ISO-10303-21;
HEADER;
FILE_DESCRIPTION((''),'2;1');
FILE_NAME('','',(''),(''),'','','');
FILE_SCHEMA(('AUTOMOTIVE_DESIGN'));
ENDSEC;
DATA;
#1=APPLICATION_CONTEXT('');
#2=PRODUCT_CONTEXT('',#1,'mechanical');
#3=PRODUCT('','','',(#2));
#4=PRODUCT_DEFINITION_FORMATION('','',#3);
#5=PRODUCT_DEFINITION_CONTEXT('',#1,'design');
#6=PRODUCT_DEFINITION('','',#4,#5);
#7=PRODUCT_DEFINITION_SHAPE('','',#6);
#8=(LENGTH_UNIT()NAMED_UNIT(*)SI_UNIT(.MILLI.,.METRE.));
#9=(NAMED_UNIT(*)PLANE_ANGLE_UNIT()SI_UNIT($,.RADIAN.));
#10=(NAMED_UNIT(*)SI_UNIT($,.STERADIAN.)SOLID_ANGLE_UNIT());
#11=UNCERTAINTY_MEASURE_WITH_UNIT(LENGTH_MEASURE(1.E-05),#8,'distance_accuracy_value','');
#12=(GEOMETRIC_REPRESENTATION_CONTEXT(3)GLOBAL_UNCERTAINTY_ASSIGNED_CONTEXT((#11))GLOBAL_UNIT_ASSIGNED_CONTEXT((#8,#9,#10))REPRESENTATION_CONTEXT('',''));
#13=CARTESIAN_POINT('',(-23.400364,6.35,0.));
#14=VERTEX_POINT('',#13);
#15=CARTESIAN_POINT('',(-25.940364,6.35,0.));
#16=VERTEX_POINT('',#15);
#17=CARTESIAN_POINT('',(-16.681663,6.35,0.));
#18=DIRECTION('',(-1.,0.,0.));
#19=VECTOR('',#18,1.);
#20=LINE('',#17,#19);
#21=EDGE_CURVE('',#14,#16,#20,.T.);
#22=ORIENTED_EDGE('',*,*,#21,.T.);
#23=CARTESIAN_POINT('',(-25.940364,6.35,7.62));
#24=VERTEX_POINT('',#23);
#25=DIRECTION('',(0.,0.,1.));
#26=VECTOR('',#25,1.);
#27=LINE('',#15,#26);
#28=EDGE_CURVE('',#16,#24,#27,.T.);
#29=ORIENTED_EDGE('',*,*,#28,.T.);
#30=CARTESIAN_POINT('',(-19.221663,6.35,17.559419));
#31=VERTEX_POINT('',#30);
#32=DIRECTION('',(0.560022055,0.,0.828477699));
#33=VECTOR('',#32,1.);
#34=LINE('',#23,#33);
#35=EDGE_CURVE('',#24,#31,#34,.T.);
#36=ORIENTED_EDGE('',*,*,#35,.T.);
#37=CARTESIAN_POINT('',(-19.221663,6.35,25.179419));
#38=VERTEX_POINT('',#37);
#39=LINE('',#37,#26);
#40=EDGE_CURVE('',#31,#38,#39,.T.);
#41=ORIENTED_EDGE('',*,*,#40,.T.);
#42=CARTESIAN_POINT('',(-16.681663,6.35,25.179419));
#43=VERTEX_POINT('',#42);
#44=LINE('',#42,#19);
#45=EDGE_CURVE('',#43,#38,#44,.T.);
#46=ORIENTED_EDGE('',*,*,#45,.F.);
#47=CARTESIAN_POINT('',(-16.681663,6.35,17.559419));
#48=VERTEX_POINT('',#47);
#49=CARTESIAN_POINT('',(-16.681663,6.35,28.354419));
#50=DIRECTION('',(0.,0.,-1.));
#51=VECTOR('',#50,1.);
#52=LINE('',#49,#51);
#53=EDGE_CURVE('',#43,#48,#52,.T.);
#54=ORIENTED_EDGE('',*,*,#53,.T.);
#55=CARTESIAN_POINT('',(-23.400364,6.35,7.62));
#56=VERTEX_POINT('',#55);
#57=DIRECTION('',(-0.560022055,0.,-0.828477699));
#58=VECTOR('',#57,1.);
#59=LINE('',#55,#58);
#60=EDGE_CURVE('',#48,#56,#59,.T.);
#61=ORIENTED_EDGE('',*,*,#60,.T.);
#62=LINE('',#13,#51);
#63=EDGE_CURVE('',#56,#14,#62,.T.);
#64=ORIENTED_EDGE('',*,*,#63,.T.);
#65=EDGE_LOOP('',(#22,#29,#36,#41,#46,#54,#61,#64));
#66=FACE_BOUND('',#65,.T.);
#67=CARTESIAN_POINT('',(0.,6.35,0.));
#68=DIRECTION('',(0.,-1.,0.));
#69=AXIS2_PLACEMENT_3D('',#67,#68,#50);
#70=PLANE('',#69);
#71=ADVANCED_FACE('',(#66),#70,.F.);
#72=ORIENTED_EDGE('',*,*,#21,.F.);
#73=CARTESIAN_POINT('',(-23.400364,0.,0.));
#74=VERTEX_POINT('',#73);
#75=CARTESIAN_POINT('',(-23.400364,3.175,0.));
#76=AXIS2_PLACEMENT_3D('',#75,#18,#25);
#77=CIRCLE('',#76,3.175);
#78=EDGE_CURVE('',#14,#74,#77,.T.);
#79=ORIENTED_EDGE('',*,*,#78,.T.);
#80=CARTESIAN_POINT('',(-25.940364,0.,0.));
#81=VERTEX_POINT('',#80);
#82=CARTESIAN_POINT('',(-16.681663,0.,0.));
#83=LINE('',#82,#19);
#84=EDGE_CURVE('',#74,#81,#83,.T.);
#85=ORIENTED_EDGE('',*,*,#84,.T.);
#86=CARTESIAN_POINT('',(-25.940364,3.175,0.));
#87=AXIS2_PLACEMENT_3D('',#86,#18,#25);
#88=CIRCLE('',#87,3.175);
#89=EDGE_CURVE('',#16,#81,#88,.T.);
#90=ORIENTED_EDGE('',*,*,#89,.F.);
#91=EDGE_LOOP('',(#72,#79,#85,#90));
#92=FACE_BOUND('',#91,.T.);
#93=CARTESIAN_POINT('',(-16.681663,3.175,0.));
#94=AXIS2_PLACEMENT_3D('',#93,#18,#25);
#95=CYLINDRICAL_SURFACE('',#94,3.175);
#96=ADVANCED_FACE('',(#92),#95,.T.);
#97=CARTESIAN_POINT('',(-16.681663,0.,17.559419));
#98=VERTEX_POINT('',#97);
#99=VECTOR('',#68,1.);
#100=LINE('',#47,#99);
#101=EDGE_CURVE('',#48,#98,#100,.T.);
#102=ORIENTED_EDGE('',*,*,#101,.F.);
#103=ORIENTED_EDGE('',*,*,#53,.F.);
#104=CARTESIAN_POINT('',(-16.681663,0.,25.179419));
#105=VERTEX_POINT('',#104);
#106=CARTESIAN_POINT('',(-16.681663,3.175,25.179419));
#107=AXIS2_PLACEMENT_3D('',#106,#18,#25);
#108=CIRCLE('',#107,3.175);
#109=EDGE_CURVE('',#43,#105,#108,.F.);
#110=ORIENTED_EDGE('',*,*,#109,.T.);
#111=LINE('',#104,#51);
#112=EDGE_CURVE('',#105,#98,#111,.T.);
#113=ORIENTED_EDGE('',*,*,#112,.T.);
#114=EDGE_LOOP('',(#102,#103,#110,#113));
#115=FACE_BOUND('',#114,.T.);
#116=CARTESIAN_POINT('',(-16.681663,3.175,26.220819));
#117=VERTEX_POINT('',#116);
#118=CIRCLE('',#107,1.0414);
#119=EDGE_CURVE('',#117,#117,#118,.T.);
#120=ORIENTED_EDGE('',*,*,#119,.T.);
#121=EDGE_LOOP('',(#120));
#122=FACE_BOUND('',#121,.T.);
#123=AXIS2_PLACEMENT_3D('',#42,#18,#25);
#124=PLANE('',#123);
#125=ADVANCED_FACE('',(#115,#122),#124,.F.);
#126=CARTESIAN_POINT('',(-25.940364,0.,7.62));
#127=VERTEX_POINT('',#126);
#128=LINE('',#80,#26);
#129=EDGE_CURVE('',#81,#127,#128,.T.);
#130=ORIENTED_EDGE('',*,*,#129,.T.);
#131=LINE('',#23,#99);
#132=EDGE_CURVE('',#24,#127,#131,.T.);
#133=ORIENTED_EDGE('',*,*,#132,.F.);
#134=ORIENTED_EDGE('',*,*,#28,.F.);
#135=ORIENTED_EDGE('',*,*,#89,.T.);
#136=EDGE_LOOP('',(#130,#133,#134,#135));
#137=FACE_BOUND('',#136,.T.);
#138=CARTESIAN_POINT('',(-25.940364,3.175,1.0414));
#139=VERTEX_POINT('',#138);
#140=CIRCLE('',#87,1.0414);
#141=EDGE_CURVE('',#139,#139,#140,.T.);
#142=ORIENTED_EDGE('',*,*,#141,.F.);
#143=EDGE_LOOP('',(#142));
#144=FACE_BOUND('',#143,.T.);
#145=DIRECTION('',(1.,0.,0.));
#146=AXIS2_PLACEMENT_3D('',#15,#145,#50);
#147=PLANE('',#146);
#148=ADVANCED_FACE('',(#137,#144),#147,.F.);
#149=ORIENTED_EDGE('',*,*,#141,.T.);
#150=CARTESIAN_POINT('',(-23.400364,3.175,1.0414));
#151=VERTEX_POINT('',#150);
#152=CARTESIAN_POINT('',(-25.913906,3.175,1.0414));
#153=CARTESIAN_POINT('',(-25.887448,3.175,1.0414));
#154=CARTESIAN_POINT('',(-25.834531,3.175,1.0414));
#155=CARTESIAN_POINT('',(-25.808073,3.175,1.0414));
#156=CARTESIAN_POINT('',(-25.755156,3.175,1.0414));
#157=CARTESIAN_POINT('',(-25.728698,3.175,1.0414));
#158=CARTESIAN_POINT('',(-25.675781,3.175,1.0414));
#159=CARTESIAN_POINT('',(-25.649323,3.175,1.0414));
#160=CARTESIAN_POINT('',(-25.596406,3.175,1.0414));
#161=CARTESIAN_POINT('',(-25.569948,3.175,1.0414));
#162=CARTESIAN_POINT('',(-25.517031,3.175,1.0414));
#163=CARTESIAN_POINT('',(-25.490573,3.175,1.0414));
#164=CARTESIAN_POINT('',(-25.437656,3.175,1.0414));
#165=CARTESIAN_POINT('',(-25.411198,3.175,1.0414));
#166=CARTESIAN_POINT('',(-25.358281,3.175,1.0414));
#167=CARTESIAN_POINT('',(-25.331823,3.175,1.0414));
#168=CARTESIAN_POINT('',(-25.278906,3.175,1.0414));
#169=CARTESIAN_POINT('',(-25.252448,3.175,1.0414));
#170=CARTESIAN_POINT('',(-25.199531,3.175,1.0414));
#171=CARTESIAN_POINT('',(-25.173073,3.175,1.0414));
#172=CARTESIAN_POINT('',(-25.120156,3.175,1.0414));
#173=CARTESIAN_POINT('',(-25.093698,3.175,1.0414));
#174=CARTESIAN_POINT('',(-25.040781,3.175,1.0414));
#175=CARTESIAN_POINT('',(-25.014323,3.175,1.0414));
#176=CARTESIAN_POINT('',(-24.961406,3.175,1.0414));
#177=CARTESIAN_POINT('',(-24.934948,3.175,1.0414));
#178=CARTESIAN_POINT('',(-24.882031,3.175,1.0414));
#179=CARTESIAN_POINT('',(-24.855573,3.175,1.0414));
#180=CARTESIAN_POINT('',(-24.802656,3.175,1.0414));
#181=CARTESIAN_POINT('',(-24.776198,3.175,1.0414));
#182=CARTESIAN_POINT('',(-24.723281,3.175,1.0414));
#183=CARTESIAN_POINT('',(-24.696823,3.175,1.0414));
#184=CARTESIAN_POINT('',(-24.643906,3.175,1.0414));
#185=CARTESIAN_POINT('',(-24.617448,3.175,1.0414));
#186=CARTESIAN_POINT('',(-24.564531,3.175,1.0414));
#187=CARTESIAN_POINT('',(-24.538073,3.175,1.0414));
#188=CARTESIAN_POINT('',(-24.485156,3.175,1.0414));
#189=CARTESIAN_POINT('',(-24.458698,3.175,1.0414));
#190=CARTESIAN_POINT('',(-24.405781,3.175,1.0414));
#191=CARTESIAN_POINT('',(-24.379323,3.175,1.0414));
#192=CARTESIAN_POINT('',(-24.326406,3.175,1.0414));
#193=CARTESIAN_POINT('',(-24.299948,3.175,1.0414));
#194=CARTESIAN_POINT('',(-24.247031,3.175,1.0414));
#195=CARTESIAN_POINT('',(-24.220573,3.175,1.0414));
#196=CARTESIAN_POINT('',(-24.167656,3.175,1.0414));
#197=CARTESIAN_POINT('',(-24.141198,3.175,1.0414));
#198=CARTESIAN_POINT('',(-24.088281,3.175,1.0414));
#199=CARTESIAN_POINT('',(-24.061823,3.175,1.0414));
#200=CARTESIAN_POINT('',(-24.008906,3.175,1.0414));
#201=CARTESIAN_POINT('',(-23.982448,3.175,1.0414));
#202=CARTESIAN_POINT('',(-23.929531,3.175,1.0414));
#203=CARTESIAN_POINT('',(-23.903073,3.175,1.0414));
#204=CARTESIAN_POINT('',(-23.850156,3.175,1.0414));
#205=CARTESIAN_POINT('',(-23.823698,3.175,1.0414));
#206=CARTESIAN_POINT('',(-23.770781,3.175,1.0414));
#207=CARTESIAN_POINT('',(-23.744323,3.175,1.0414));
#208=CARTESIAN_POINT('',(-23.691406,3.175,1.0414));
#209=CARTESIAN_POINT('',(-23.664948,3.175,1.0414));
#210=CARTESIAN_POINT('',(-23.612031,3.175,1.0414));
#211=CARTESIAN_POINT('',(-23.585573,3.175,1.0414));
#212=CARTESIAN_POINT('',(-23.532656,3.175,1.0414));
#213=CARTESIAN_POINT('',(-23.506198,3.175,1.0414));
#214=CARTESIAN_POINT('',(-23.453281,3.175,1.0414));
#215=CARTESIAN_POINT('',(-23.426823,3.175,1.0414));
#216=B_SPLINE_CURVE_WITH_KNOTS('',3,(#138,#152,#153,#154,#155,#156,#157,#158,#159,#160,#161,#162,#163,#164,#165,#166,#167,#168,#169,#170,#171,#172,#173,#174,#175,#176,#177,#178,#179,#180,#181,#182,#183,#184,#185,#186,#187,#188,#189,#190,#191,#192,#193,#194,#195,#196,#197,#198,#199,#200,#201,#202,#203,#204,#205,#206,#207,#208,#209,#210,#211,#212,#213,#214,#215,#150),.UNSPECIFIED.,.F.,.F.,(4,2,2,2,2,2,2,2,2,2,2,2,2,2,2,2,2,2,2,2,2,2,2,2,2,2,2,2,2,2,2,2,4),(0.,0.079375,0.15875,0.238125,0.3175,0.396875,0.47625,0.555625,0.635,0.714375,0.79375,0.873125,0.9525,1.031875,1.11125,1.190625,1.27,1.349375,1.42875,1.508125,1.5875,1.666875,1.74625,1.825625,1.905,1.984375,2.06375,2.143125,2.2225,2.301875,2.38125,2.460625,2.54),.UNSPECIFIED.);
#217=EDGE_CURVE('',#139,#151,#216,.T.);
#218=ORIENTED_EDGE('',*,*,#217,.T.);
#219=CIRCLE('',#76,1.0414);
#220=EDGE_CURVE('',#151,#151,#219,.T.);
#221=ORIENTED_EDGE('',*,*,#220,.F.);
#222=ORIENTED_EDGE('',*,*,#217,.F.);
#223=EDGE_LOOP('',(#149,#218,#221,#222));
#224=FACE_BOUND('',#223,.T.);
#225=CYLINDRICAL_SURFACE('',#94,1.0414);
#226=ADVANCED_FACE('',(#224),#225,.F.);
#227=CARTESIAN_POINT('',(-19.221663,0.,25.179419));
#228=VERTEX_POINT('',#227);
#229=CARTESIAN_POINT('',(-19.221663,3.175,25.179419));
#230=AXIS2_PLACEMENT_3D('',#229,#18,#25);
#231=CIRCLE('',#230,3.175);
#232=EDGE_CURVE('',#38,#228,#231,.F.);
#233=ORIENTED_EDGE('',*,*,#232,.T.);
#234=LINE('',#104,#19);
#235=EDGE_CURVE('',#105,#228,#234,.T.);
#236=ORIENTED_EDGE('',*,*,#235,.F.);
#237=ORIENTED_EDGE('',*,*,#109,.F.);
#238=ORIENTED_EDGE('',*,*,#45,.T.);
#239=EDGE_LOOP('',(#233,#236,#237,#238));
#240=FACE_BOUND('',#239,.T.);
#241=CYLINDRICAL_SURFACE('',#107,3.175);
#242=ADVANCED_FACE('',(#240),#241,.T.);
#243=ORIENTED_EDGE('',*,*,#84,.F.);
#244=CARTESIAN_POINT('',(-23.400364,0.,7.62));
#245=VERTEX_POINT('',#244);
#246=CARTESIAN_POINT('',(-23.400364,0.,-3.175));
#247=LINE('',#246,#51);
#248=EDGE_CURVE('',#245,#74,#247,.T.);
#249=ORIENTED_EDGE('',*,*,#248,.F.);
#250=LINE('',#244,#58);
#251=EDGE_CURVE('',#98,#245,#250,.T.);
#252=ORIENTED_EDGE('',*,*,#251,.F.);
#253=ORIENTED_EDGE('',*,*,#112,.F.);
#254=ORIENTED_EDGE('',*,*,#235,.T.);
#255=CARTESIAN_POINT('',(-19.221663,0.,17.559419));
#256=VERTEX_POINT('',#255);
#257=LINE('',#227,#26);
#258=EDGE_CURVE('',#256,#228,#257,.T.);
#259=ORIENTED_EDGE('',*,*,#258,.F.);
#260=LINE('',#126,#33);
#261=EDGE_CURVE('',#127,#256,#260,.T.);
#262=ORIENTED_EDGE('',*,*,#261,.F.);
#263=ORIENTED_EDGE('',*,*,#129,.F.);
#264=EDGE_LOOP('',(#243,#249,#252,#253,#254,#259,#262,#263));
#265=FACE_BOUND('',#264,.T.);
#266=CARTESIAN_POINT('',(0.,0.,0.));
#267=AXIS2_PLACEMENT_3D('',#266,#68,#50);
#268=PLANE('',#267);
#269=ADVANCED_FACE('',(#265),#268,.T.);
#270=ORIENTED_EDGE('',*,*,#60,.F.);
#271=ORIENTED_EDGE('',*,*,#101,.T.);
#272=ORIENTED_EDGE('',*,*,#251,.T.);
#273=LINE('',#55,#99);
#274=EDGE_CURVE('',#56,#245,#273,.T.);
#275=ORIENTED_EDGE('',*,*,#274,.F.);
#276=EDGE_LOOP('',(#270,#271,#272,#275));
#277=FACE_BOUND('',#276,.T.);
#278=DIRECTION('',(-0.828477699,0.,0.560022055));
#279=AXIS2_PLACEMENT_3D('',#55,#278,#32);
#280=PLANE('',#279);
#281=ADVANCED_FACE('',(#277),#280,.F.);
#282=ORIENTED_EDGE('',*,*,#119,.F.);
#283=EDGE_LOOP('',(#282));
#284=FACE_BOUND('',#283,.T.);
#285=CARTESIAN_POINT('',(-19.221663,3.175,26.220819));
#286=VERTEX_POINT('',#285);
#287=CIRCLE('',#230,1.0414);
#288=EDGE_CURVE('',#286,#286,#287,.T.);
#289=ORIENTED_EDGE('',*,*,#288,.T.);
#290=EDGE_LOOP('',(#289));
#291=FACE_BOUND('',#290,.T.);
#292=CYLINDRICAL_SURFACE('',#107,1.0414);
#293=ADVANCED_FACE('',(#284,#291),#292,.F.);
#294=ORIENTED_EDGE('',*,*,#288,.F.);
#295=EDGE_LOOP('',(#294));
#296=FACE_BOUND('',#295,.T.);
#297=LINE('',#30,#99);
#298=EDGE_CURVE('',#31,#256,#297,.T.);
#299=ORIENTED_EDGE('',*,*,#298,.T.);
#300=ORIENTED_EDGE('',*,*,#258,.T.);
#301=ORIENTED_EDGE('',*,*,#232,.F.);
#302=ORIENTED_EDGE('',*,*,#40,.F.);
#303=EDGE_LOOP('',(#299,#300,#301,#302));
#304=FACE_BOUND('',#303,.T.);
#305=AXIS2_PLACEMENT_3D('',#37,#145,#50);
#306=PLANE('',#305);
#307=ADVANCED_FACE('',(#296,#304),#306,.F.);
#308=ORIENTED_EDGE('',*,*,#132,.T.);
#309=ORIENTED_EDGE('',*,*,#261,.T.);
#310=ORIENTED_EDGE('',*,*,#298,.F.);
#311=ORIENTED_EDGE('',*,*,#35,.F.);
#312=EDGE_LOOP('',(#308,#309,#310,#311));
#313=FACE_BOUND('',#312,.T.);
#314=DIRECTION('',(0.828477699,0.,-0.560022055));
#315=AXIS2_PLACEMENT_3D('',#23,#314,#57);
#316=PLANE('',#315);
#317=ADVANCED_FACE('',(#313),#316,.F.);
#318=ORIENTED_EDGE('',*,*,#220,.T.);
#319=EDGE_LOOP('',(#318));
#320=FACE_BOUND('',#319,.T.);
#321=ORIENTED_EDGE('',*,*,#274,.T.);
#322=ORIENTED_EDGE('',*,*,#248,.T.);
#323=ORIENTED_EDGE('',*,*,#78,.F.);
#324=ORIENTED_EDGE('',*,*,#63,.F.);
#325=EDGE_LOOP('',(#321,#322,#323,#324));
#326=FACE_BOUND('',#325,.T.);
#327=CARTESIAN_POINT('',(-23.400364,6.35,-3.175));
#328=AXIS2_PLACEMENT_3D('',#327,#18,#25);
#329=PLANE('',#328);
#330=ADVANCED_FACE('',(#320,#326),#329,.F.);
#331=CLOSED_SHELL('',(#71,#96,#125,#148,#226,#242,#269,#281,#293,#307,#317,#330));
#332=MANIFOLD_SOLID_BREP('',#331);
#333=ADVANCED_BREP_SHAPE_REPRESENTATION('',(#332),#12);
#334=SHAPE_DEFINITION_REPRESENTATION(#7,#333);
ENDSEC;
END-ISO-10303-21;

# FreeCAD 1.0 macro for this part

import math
import FreeCAD as App
import Part
import Sketcher
from FreeCAD import Vector
Q = App.Units.Quantity


def add_polygon(sketch, points):
    """Adds a closed chain of lines whose ends are joined by coincident constraints."""
    first, n = sketch.GeometryCount, len(points)
    for a, b in zip(points, points[1:] + points[:1]):
        sketch.addGeometry(Part.LineSegment(App.Vector(*a, 0), App.Vector(*b, 0)), False)
    for i in range(n):
        sketch.addConstraint(Sketcher.Constraint("Coincident", first + i, 2, first + (i + 1) % n, 1))

doc = App.newDocument("Part")
params = doc.addObject("Spreadsheet::Sheet", "Params")
for row, (alias, value) in enumerate([
    ("sketch1_width", "0.1 in"),
    ("sketch1_height", "0.425 in"),
    ("pad1_length", "0.25 in"),
    ("sketch2_diameter", "0.082 in"),
    ("sketch2_radius", "0.125 in"),
    ("sketch3_diameter", "0.082 in"),
    ("sketch3_radius", "0.125 in"),
], start=1):
    params.set(f"A{row}", alias)
    params.set(f"B{row}", "=" + value)
    params.setAlias(f"B{row}", alias)

body = doc.addObject("PartDesign::Body", "Body")

sketch1 = doc.addObject("Sketcher::SketchObject", "Sketch")
body.addObject(sketch1)
sketch1.AttachmentSupport = (doc.XZ_Plane, [""])
sketch1.MapMode = "FlatFace"
add_polygon(sketch1, [(-16.7, 17.6), (-23.4, 7.6), (-23.4, -3.2), (-25.9, -3.2), (-25.9, 7.6), (-19.2, 17.6), (-19.2, 28.4), (-16.7, 28.4)])
sketch1.addConstraint([
    Sketcher.Constraint("Vertical", 1),
    Sketcher.Constraint("Horizontal", 2),
    Sketcher.Constraint("Vertical", 3),
    Sketcher.Constraint("Vertical", 5),
    Sketcher.Constraint("Horizontal", 6),
    Sketcher.Constraint("Vertical", 7),
    Sketcher.Constraint("Parallel", 0, 4),
    Sketcher.Constraint("Horizontal", 0, 2, 3, 2),
    Sketcher.Constraint("Horizontal", 4, 2, 7, 2),
    Sketcher.Constraint("Equal", 3, 5),
    Sketcher.Constraint("DistanceX", 2, 2, 2, 1, Q("0.1 in")),
    Sketcher.Constraint("DistanceY", -1, 1, 0, 2, Q("0.3 in")),
    Sketcher.Constraint("DistanceY", 1, 2, 1, 1, Q("0.425 in")),
    Sketcher.Constraint("DistanceX", 0, 2, 4, 2, Q("4.178701 mm")),
    Sketcher.Constraint("Distance", 0, Q("11.997208 mm")),
    Sketcher.Constraint("DistanceX", 0, 2, -1, 1, Q("23.400364 mm")),
])
sketch1.setExpression("Constraints[18]", "Params.sketch1_width")
sketch1.setExpression("Constraints[20]", "Params.sketch1_height")
pad1 = doc.addObject("PartDesign::Pad", "Pad")
body.addObject(pad1)
pad1.Profile = sketch1
pad1.setExpression("Length", "Params.pad1_length")
pad1.Reversed = True

sketch2 = doc.addObject("Sketcher::SketchObject", "Sketch001")
body.addObject(sketch2)
sketch2.AttachmentSupport = (doc.YZ_Plane, [""])
sketch2.MapMode = "FlatFace"
sketch2.AttachmentOffset = App.Placement(Vector(0, 0, -25.940364), App.Rotation())
sketch2.addGeometry([
    Part.ArcOfCircle(Part.Circle(Vector(3.2, 0, 0), Vector(0, 0, 1), 3.2), math.radians(-90), math.radians(0)),
    Part.LineSegment(Vector(6.3, 0, 0), Vector(6.3, -3.2, 0)),
    Part.LineSegment(Vector(6.3, -3.2, 0), Vector(3.2, -3.2, 0)),
    Part.ArcOfCircle(Part.Circle(Vector(3.2, 0, 0), Vector(0, 0, 1), 3.2), math.radians(-180), math.radians(-90)),
    Part.LineSegment(Vector(3.2, -3.2, 0), Vector(0, -3.2, 0)),
    Part.LineSegment(Vector(0, -3.2, 0), Vector(0, 0, 0)),
    Part.Circle(Vector(3.2, 0, 0), Vector(0, 0, 1), 1),
], False)
sketch2.addConstraint([
    Sketcher.Constraint("Tangent", 0, 2, 1, 1),
    Sketcher.Constraint("Coincident", 1, 2, 2, 1),
    Sketcher.Constraint("Tangent", 2, 2, 0, 1),
    Sketcher.Constraint("Tangent", 3, 2, 4, 1),
    Sketcher.Constraint("Coincident", 4, 2, 5, 1),
    Sketcher.Constraint("Tangent", 5, 2, 3, 1),
    Sketcher.Constraint("Vertical", 1),
    Sketcher.Constraint("Horizontal", 2),
    Sketcher.Constraint("Horizontal", 4),
    Sketcher.Constraint("Vertical", 5),
    Sketcher.Constraint("Coincident", 5, 2, -1, 1),
    Sketcher.Constraint("Coincident", 3, 3, 0, 3),
    Sketcher.Constraint("Coincident", 6, 3, 0, 3),
    Sketcher.Constraint("Equal", 0, 3),
    Sketcher.Constraint("Diameter", 6, Q("0.082 in")),
    Sketcher.Constraint("Radius", 0, Q("0.125 in")),
])
sketch2.setExpression("Constraints[14]", "Params.sketch2_diameter")
sketch2.setExpression("Constraints[15]", "Params.sketch2_radius")
pocket1 = doc.addObject("PartDesign::Pocket", "Pocket")
body.addObject(pocket1)
pocket1.Profile = sketch2
pocket1.Type = "ThroughAll"
pocket1.Reversed = True

sketch3 = doc.addObject("Sketcher::SketchObject", "Sketch002")
body.addObject(sketch3)
sketch3.AttachmentSupport = (doc.YZ_Plane, [""])
sketch3.MapMode = "FlatFace"
sketch3.AttachmentOffset = App.Placement(Vector(0, 0, -19.221663), App.Rotation())
sketch3.addGeometry([
    Part.LineSegment(Vector(6.3, 28.4, 0), Vector(6.3, 25.2, 0)),
    Part.ArcOfCircle(Part.Circle(Vector(3.2, 25.2, 0), Vector(0, 0, 1), 3.2), math.radians(0), math.radians(90)),
    Part.LineSegment(Vector(3.2, 28.4, 0), Vector(6.3, 28.4, 0)),
    Part.LineSegment(Vector(0, 28.4, 0), Vector(3.2, 28.4, 0)),
    Part.ArcOfCircle(Part.Circle(Vector(3.2, 25.2, 0), Vector(0, 0, 1), 3.2), math.radians(90), math.radians(180)),
    Part.LineSegment(Vector(0, 25.2, 0), Vector(0, 28.4, 0)),
    Part.Circle(Vector(3.2, 25.2, 0), Vector(0, 0, 1), 1),
], False)
sketch3.addConstraint([
    Sketcher.Constraint("Tangent", 0, 2, 1, 1),
    Sketcher.Constraint("Tangent", 1, 2, 2, 1),
    Sketcher.Constraint("Coincident", 2, 2, 0, 1),
    Sketcher.Constraint("Tangent", 3, 2, 4, 1),
    Sketcher.Constraint("Tangent", 4, 2, 5, 1),
    Sketcher.Constraint("Coincident", 5, 2, 3, 1),
    Sketcher.Constraint("Vertical", 0),
    Sketcher.Constraint("Horizontal", 2),
    Sketcher.Constraint("Horizontal", 3),
    Sketcher.Constraint("Vertical", 5),
    Sketcher.Constraint("Coincident", 4, 3, 1, 3),
    Sketcher.Constraint("Coincident", 6, 3, 1, 3),
    Sketcher.Constraint("Equal", 1, 4),
    Sketcher.Constraint("PointOnObject", 4, 2, -2),
    Sketcher.Constraint("Diameter", 6, Q("0.082 in")),
    Sketcher.Constraint("Radius", 1, Q("0.125 in")),
    Sketcher.Constraint("DistanceY", -1, 1, 1, 3, Q("25.179419 mm")),
])
sketch3.setExpression("Constraints[14]", "Params.sketch3_diameter")
sketch3.setExpression("Constraints[15]", "Params.sketch3_radius")
pocket2 = doc.addObject("PartDesign::Pocket", "Pocket001")
body.addObject(pocket2)
pocket2.Profile = sketch3
pocket2.Type = "ThroughAll"
pocket2.Reversed = True

doc.recompute()
